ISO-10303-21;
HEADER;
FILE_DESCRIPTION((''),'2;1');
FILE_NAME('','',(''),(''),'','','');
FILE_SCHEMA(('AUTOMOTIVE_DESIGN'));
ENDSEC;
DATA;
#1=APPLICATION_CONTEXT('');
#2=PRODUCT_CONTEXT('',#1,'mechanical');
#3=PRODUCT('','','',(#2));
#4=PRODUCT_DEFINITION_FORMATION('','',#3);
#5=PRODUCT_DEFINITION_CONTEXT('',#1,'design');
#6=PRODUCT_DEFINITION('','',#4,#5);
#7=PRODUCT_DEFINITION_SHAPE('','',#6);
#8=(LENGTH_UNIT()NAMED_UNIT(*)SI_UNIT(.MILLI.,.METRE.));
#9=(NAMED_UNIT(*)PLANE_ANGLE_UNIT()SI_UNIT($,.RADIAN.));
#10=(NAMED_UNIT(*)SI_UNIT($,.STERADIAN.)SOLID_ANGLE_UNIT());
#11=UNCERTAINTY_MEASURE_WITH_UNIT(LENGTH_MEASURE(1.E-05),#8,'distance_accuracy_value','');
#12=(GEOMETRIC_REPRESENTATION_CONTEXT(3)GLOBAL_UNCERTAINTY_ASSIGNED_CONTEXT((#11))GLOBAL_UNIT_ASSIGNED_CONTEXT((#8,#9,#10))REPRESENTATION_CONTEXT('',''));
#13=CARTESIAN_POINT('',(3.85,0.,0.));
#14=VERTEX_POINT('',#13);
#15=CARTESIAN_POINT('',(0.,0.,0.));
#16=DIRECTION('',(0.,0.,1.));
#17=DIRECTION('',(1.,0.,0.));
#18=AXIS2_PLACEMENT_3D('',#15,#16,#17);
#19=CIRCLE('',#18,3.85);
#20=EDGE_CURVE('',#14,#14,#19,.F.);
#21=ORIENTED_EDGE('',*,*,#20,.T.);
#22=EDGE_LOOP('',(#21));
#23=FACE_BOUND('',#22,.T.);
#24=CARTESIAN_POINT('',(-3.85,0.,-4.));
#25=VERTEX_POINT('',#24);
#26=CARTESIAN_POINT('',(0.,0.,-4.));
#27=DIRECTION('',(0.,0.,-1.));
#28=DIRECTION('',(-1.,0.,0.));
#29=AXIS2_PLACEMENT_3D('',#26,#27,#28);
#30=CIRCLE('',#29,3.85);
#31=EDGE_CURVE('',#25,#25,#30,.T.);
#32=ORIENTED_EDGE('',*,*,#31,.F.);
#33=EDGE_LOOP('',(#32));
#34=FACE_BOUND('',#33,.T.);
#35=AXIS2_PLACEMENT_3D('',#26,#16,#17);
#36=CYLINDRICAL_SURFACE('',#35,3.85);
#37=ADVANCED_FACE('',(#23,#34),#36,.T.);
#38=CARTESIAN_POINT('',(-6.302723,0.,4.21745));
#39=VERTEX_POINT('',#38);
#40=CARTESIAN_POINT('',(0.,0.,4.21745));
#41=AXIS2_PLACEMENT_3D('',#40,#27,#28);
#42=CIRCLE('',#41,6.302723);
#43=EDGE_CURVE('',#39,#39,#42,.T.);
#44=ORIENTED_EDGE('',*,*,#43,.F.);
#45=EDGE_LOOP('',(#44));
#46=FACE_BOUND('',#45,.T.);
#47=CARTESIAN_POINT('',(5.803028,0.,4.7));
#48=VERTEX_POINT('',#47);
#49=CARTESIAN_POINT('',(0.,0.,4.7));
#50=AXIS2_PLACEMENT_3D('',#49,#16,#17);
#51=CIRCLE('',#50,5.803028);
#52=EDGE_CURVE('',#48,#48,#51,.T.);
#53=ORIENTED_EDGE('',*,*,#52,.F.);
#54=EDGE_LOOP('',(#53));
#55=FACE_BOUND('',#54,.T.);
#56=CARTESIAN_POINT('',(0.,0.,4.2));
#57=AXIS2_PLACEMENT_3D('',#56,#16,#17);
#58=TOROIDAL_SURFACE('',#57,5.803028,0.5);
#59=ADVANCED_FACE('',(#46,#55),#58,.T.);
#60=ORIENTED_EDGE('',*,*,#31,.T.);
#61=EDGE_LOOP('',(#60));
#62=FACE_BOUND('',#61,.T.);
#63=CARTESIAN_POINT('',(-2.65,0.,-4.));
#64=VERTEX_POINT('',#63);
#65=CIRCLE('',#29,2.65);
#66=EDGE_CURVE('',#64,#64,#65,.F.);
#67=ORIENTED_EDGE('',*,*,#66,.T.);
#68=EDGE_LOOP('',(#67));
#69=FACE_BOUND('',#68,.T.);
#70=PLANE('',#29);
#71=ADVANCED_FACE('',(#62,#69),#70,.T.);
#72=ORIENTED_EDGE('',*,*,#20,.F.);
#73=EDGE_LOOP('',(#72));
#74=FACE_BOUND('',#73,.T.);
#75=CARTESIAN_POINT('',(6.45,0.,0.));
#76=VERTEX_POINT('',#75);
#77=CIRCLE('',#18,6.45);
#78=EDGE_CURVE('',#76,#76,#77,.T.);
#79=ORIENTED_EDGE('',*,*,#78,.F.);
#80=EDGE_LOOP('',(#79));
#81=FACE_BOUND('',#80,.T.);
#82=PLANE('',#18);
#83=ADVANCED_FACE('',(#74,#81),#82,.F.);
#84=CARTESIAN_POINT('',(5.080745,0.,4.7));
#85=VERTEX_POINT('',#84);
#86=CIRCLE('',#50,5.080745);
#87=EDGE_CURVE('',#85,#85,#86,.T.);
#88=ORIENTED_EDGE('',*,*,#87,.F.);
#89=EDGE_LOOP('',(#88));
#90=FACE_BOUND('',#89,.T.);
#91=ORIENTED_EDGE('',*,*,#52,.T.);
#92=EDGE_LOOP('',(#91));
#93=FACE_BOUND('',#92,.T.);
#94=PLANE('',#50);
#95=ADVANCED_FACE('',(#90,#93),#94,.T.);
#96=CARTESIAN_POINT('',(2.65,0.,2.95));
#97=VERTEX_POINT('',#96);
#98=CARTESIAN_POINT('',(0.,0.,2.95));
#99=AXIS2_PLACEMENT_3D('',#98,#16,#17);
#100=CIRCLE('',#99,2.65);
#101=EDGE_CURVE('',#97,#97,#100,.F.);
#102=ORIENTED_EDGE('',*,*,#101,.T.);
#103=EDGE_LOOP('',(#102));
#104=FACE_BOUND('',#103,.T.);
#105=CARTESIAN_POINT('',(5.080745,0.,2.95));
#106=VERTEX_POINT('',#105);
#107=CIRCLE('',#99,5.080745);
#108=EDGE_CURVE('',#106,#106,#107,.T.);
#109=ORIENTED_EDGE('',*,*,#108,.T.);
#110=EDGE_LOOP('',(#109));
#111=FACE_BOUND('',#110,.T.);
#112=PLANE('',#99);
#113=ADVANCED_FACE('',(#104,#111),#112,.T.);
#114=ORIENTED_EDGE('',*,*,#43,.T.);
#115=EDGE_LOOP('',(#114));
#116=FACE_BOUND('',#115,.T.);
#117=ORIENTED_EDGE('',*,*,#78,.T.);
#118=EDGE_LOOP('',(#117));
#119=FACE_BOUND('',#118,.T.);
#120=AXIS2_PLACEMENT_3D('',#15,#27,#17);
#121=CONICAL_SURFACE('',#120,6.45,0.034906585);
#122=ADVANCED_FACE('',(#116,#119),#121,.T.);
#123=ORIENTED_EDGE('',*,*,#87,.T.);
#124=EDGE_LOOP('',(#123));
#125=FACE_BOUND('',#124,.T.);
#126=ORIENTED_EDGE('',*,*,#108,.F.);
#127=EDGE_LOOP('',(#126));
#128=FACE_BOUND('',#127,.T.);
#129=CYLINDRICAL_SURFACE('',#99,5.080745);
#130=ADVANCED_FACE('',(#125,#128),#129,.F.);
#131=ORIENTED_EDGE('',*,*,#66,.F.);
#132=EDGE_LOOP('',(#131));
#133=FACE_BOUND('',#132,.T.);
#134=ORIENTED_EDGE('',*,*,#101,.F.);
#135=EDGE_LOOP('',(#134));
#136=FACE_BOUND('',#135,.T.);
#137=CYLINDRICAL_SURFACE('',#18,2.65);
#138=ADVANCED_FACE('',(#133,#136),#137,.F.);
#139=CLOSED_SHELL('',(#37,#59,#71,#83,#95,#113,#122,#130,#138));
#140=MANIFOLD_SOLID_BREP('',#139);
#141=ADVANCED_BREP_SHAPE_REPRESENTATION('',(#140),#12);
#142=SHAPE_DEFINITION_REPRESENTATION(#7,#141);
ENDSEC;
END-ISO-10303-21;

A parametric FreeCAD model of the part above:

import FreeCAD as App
import Part
import Sketcher
Q = App.Units.Quantity


def edges_at(feature, points):
    """Names of the edges that pass closest to the given points."""
    edges = feature.Shape.Edges
    near = lambda p: min(range(len(edges)), key=lambda i: edges[i].distToShape(Part.Vertex(*p))[0])
    return sorted({f"Edge{near(p) + 1}" for p in points})


def faces_at(feature, points):
    """Names of the faces that lie closest to the given points."""
    faces = feature.Shape.Faces
    near = lambda p: min(range(len(faces)), key=lambda i: faces[i].distToShape(Part.Vertex(*p))[0])
    return sorted({f"Face{near(p) + 1}" for p in points})

doc = App.newDocument("Part")
body = doc.addObject("PartDesign::Body", "Body")

# Sketch on XY plane
sketch1 = body.newObject("Sketcher::SketchObject", "Sketch")
sketch1.AttachmentSupport = (doc.getObject("XY_Plane"), [""])
sketch1.MapMode = "FlatFace"
sketch1.addGeometry(Part.Circle(App.Vector(0, 0, 0), App.Vector(0, 0, 1), 6), False)
sketch1.addGeometry(Part.Circle(App.Vector(0, 0, 0), App.Vector(0, 0, 1), 5), False)
sketch1.addConstraint(Sketcher.Constraint("Coincident", 0, 3, -1, 1))
sketch1.addConstraint(Sketcher.Constraint("Coincident", 1, 3, -1, 1))
sketch1.addConstraint(Sketcher.Constraint("Diameter", 0, Q("12.9 mm")))
sketch1.addConstraint(Sketcher.Constraint("Diameter", 1, Q("10.3 mm")))
pad1 = body.newObject("PartDesign::Pad", "Pad")
pad1.Profile = sketch1
pad1.Length = 4.7
doc.recompute()

draft = body.newObject("PartDesign::Draft", "Draft")
draft.Base = (pad1, faces_at(pad1, [(-6.45, 0, 2.35), (-5.15, 0, 2.35)]))
draft.NeutralPlane = (doc.getObject("XY_Plane"), [""])
draft.Angle = 2
draft.Reversed = False

# Sketch on XY plane
sketch2 = body.newObject("Sketcher::SketchObject", "Sketch001")
sketch2.AttachmentSupport = (doc.getObject("XY_Plane"), [""])
sketch2.MapMode = "FlatFace"
sketch2.AttachmentOffset = App.Placement(App.Vector(0, 0, 4.7), App.Rotation())
sketch2.addGeometry(Part.Circle(App.Vector(0, 0, 0), App.Vector(0, 0, 1), 6.3), False)
sketch2.addGeometry(Part.Circle(App.Vector(0, 0, 0), App.Vector(0, 0, 1), 2.6), False)
sketch2.addConstraint(Sketcher.Constraint("Coincident", 0, 3, -1, 1))
sketch2.addConstraint(Sketcher.Constraint("Coincident", 1, 3, -1, 1))
sketch2.addConstraint(Sketcher.Constraint("Diameter", 1, Q("5.3 mm")))
sketch2.addConstraint(Sketcher.Constraint("Diameter", 0, Q("12.571745 mm")))
pad2 = body.newObject("PartDesign::Pad", "Pad001")
pad2.Profile = sketch2
pad2.Length = 4.7
pad2.Reversed = True
doc.recompute()

fillet = body.newObject("PartDesign::Fillet", "Fillet")
fillet.Base = (pad2, edges_at(pad2, [(-6.286, 0, 4.7)]))
fillet.Radius = 0.5

# Sketch on XY plane
sketch3 = body.newObject("Sketcher::SketchObject", "Sketch002")
sketch3.AttachmentSupport = (doc.getObject("XY_Plane"), [""])
sketch3.MapMode = "FlatFace"
sketch3.AttachmentOffset = App.Placement(App.Vector(0, 0, 4.7), App.Rotation())
sketch3.addGeometry(Part.Circle(App.Vector(0, 0, 0), App.Vector(0, 0, 1), 5), False)
sketch3.addConstraint(Sketcher.Constraint("Coincident", 0, 3, -1, 1))
sketch3.addConstraint(Sketcher.Constraint("Diameter", 0, Q("10.161491 mm")))
pocket1 = body.newObject("PartDesign::Pocket", "Pocket")
pocket1.Profile = sketch3
pocket1.Length = 1.75

# Sketch on XY plane
sketch4 = body.newObject("Sketcher::SketchObject", "Sketch003")
sketch4.AttachmentSupport = (doc.getObject("XY_Plane"), [""])
sketch4.MapMode = "FlatFace"
sketch4.addGeometry(Part.Circle(App.Vector(0, 0, 0), App.Vector(0, 0, 1), 3.9), False)
sketch4.addGeometry(Part.Circle(App.Vector(0, 0, 0), App.Vector(0, 0, 1), 2.6), False)
sketch4.addConstraint(Sketcher.Constraint("Coincident", 0, 3, -1, 1))
sketch4.addConstraint(Sketcher.Constraint("Coincident", 1, 3, -1, 1))
sketch4.addConstraint(Sketcher.Constraint("Diameter", 0, Q("7.7 mm")))
sketch4.addConstraint(Sketcher.Constraint("Diameter", 1, Q("5.3 mm")))
pad3 = body.newObject("PartDesign::Pad", "Pad002")
pad3.Profile = sketch4
pad3.Length = 4
pad3.Reversed = True

doc.recompute()
